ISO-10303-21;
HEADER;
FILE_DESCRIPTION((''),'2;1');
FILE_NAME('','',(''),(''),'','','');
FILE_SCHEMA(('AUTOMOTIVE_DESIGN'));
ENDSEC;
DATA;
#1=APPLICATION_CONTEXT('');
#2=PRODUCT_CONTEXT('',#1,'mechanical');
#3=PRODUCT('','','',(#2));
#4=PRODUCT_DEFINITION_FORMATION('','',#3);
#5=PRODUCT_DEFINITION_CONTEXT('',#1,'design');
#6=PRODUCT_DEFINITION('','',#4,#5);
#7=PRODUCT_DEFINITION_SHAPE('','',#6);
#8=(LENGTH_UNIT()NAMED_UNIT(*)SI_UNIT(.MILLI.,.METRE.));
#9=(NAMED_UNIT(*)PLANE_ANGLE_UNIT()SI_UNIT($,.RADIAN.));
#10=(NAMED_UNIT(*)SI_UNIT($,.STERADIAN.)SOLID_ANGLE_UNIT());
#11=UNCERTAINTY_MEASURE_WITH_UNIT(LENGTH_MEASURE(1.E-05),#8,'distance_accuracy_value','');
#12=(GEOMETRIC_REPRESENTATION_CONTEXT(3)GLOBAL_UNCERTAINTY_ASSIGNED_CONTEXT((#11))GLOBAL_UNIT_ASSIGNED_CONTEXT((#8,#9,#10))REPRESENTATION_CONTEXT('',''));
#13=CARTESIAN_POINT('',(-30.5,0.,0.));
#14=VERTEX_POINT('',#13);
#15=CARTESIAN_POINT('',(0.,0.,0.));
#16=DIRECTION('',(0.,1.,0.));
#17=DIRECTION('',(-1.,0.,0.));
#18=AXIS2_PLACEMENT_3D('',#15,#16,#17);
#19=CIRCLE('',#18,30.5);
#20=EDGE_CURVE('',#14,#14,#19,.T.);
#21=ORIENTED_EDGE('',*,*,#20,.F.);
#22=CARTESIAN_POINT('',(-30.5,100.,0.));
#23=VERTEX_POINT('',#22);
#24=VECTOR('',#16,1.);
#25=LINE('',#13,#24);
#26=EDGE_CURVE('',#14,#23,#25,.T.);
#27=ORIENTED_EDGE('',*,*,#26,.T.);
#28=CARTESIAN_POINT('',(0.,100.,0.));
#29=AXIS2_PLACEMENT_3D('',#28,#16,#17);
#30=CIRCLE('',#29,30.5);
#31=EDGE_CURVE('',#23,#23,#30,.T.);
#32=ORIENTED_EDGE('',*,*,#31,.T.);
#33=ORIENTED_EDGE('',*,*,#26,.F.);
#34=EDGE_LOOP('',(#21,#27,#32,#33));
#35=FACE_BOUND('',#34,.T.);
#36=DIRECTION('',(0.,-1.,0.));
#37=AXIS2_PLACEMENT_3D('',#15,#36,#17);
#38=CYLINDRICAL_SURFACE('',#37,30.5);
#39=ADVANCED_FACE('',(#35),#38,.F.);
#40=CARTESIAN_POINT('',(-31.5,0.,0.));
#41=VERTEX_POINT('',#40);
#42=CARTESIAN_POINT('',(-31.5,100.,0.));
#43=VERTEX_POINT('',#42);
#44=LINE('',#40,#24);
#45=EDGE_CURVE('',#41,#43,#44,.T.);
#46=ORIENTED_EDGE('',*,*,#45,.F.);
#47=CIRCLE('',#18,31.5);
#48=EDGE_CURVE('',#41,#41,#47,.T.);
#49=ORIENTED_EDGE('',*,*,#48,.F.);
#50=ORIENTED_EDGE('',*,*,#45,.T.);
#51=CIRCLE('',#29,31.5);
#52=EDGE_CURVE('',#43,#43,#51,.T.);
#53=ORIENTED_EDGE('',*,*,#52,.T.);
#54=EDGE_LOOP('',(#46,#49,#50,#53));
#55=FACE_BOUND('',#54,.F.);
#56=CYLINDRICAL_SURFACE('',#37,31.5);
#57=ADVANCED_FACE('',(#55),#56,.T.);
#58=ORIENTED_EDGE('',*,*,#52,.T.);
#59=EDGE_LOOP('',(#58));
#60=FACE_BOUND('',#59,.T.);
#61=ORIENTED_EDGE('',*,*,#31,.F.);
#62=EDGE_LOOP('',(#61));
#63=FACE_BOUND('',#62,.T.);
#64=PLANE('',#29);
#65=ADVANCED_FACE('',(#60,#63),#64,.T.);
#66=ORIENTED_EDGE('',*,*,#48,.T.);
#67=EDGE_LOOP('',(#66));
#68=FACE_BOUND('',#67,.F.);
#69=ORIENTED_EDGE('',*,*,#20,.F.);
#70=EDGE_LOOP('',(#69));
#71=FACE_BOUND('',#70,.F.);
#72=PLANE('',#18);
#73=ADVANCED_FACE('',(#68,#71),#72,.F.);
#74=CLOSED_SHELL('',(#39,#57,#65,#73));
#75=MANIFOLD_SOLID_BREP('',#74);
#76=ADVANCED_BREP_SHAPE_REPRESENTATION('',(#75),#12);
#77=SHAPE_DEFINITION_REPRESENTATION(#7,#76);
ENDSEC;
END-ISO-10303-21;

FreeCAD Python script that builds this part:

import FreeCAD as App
import Part
import Sketcher
Q = App.Units.Quantity

doc = App.newDocument("Part")
body = doc.addObject("PartDesign::Body", "Body")

sketch1 = doc.addObject("Sketcher::SketchObject", "Sketch")
body.addObject(sketch1)
sketch1.AttachmentSupport = (doc.XZ_Plane, [""])
sketch1.MapMode = "FlatFace"
sketch1.addGeometry([
    Part.Circle(App.Vector(0, 0, 0), App.Vector(0, 0, 1), 31.5),
    Part.Circle(App.Vector(0, 0, 0), App.Vector(0, 0, 1), 30.5),
], False)
sketch1.addConstraint([
    Sketcher.Constraint("Coincident", 0, 3, -1, 1),
    Sketcher.Constraint("Coincident", 1, 3, -1, 1),
    Sketcher.Constraint("Diameter", 0, Q("63 mm")),
    Sketcher.Constraint("Diameter", 1, Q("61 mm")),
])
pad1 = doc.addObject("PartDesign::Pad", "Pad")
body.addObject(pad1)
pad1.Profile = sketch1
pad1.Length = 100
pad1.Reversed = True

doc.recompute()
